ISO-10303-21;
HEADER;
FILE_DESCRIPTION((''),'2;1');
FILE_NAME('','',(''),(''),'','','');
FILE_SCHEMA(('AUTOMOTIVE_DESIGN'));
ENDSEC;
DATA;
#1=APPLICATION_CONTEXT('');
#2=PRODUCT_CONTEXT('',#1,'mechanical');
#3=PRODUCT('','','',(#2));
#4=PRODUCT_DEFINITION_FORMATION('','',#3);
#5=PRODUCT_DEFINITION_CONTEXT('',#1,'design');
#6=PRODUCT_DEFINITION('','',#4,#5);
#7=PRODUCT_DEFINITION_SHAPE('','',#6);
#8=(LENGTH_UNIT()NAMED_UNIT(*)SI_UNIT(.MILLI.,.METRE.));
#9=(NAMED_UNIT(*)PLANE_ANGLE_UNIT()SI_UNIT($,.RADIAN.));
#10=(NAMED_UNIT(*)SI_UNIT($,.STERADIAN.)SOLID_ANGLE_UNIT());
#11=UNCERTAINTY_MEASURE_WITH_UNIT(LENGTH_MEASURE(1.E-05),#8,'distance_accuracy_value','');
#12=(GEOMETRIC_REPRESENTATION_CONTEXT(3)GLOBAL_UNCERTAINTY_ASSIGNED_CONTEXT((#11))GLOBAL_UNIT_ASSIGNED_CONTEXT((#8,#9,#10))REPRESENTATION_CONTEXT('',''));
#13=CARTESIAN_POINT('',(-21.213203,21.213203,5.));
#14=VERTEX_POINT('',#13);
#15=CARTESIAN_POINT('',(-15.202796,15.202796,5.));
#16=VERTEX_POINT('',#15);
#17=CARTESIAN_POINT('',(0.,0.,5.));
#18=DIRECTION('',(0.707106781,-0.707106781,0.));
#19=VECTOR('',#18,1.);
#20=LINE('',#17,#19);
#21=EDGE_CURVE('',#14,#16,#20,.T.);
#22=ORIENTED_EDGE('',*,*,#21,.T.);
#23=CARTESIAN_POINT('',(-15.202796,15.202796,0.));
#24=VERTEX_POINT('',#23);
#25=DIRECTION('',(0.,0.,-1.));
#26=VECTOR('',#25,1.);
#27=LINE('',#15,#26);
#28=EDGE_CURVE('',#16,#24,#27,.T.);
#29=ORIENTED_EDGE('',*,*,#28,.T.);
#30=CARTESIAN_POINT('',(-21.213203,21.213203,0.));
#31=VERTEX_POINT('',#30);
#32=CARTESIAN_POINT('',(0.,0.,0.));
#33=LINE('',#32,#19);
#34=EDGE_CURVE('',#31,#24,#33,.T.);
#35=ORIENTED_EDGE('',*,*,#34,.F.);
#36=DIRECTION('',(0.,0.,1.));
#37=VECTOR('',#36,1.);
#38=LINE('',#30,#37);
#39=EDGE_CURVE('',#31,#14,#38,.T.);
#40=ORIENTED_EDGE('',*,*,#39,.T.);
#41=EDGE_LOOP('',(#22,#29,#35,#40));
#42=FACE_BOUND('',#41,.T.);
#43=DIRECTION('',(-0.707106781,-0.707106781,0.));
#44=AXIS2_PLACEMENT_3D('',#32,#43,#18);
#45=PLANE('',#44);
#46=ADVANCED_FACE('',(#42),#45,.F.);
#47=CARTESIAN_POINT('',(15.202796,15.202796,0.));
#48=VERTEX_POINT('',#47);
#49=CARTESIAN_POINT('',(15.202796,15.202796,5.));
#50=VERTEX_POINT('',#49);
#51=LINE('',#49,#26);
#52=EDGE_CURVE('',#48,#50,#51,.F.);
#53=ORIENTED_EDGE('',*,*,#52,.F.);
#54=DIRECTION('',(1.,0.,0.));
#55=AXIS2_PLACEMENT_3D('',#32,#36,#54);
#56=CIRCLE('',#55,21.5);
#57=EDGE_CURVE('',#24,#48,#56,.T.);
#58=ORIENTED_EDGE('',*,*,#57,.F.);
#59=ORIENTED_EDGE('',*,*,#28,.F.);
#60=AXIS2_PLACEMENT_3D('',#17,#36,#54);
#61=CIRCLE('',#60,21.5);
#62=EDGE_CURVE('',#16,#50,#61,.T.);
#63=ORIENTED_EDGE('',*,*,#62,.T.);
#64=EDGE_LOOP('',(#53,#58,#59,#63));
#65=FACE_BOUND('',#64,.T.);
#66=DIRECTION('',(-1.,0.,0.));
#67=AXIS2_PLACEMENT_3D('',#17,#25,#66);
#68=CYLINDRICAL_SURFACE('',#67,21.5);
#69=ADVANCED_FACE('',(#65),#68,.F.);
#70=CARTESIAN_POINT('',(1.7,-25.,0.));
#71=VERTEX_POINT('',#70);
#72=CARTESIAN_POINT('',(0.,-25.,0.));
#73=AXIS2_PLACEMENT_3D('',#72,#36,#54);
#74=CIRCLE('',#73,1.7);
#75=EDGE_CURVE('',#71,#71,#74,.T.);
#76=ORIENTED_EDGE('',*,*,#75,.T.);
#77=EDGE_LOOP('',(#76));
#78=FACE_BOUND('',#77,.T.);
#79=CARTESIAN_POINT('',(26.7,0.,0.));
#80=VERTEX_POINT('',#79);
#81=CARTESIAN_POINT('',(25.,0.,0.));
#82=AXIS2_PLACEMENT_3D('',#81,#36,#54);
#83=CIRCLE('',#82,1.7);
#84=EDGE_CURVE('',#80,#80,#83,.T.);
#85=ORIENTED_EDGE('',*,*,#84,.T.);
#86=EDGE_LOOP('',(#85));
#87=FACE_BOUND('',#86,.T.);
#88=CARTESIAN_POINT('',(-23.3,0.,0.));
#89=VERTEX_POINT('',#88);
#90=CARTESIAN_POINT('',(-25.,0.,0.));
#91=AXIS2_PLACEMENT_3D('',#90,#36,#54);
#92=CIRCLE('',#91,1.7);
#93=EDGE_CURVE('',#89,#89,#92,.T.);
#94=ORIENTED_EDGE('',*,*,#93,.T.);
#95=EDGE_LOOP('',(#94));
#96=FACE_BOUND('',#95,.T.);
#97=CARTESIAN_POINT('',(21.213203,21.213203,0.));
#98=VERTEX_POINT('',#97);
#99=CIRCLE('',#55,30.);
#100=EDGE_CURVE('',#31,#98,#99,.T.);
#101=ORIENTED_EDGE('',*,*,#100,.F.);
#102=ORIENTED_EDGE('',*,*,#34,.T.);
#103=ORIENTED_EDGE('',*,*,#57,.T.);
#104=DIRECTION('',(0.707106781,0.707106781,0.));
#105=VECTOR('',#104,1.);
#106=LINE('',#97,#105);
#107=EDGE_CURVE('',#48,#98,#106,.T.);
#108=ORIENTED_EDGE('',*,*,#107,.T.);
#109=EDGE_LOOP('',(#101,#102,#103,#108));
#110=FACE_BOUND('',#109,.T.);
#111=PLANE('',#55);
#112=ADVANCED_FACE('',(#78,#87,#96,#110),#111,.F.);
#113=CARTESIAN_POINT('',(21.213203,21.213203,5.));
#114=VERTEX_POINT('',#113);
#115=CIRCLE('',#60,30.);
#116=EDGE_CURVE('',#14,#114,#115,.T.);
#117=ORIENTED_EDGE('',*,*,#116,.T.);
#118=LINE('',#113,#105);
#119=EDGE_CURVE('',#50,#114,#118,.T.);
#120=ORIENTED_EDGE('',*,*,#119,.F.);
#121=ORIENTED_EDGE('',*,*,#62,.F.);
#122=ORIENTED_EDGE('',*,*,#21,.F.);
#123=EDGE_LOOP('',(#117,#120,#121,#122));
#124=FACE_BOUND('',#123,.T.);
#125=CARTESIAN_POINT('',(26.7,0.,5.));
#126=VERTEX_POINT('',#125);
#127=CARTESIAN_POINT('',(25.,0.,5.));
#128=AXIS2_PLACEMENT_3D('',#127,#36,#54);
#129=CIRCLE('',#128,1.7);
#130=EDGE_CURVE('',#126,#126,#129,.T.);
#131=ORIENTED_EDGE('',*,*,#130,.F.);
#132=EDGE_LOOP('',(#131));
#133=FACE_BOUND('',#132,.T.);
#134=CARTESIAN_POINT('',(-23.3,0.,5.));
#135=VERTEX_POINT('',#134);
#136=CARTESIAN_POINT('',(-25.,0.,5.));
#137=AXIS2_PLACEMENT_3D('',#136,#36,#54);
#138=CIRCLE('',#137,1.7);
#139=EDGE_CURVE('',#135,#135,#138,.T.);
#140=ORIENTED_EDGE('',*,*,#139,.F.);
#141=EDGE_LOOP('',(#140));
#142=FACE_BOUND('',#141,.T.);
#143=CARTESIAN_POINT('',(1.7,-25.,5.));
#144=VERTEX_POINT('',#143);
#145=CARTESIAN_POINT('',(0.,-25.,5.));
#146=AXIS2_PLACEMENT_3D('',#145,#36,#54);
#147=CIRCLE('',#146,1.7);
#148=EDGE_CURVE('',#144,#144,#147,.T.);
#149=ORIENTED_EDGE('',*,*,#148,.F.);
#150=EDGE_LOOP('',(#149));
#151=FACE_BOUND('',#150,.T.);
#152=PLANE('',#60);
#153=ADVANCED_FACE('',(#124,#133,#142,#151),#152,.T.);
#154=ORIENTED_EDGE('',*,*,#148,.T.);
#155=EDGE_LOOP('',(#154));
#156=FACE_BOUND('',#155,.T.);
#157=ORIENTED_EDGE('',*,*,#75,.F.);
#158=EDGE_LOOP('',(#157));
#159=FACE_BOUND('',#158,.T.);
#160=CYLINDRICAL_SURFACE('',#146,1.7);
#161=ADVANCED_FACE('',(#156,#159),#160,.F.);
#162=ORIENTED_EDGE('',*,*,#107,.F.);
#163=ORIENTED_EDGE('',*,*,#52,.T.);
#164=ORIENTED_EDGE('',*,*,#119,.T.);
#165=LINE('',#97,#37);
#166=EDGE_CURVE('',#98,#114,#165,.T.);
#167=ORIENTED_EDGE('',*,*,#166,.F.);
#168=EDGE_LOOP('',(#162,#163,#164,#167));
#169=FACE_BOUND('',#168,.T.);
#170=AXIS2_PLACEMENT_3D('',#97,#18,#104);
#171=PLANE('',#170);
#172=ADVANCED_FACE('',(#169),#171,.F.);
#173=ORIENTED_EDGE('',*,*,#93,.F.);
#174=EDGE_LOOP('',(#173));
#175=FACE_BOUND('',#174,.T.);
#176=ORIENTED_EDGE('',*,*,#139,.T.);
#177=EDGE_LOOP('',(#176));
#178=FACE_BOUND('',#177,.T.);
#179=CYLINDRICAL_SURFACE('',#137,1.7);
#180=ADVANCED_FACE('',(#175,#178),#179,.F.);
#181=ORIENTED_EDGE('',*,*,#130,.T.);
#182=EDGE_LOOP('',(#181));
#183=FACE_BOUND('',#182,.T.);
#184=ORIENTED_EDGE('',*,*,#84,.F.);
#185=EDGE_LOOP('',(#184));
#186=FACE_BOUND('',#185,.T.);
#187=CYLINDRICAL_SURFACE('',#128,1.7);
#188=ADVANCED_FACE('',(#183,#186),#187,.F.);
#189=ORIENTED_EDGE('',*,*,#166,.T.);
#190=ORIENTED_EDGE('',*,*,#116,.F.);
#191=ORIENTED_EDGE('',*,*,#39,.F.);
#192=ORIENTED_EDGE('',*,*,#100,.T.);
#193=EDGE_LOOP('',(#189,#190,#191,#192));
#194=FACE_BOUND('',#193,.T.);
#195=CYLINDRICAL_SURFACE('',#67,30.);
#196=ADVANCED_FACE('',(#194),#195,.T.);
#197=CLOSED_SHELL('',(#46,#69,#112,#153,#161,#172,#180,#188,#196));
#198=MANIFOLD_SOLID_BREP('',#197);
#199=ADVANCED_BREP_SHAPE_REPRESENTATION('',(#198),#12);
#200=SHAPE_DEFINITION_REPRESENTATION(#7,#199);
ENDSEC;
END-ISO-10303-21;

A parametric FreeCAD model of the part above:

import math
import FreeCAD as App
import Part
import Sketcher

doc = App.newDocument("Part")
body = doc.addObject("PartDesign::Body", "Body")

sketch1 = doc.addObject("Sketcher::SketchObject", "Sketch")
body.addObject(sketch1)
sketch1.AttachmentSupport = (doc.XY_Plane, [""])
sketch1.MapMode = "FlatFace"
sketch1.addGeometry([
    Part.Circle(App.Vector(0, 0, 0), App.Vector(0, 0, 1), 30),
    Part.Circle(App.Vector(0, 0, 0), App.Vector(0, 0, 1), 22),
], False)
sketch1.addConstraint([
    Sketcher.Constraint("Coincident", 0, 3, -1, 1),
    Sketcher.Constraint("Coincident", 1, 3, -1, 1),
    Sketcher.Constraint("Diameter", 0, 60.0),
    Sketcher.Constraint("Diameter", 1, 43.0),
])
pad1 = doc.addObject("PartDesign::Pad", "Pad")
body.addObject(pad1)
pad1.Profile = sketch1
pad1.Length = 5

sketch2 = doc.addObject("Sketcher::SketchObject", "Sketch001")
body.addObject(sketch2)
sketch2.AttachmentSupport = (doc.XY_Plane, [""])
sketch2.MapMode = "FlatFace"
sketch2.AttachmentOffset = App.Placement(App.Vector(0, 0, 5), App.Rotation())
sketch2.addGeometry([
    Part.Circle(App.Vector(-25, 0, 0), App.Vector(0, 0, 1), 1.7),
    Part.Circle(App.Vector(0, 25, 0), App.Vector(0, 0, 1), 1.7),
    Part.Circle(App.Vector(0, -25, 0), App.Vector(0, 0, 1), 1.7),
    Part.Circle(App.Vector(25, 0, 0), App.Vector(0, 0, 1), 1.7),
], False)
sketch2.addConstraint([
    Sketcher.Constraint("Equal", 0, 1),
    Sketcher.Constraint("Equal", 1, 2),
    Sketcher.Constraint("Equal", 2, 3),
    Sketcher.Constraint("Symmetric", 1, 3, 2, 3, -1, 1),
    Sketcher.Constraint("Symmetric", 0, 3, 3, 3, -1, 1),
    Sketcher.Constraint("PointOnObject", 0, 3, -1),
    Sketcher.Constraint("PointOnObject", 1, 3, -2),
    Sketcher.Constraint("Diameter", 0, 3.4),
    Sketcher.Constraint("DistanceX", 0, 3, -1, 1, 25.0),
    Sketcher.Constraint("DistanceY", -1, 1, 1, 3, 25.0),
])
doc.recompute()
hole = doc.addObject("PartDesign::Hole", "Hole")
body.addObject(hole)
hole.Profile = sketch2
hole.ThreadType = "None"
hole.Diameter = 3.4
hole.DepthType = "ThroughAll"

sketch3 = doc.addObject("Sketcher::SketchObject", "Sketch002")
body.addObject(sketch3)
sketch3.AttachmentSupport = (doc.XY_Plane, [""])
sketch3.MapMode = "FlatFace"
sketch3.AttachmentOffset = App.Placement(App.Vector(0, 0, 5), App.Rotation())
sketch3.addGeometry([
    Part.LineSegment(App.Vector(-21, 21, 0), App.Vector(0, 0, 0)),
    Part.LineSegment(App.Vector(0, 0, 0), App.Vector(21, 21, 0)),
    Part.ArcOfCircle(Part.Circle(App.Vector(0, 0, 0), App.Vector(0, 0, 1), 30), math.radians(45), math.radians(135)),
], False)
sketch3.addConstraint([
    Sketcher.Constraint("Coincident", 0, 2, 1, 1),
    Sketcher.Constraint("Coincident", 1, 2, 2, 1),
    Sketcher.Constraint("Coincident", 2, 2, 0, 1),
    Sketcher.Constraint("Coincident", 2, 3, -1, 1),
    Sketcher.Constraint("Coincident", 0, 2, -1, 1),
    Sketcher.Constraint("Perpendicular", 0, 1),
    Sketcher.Constraint("Horizontal", 1, 2, 2, 2),
    Sketcher.Constraint("Radius", 2, 30.0),
])
pocket1 = doc.addObject("PartDesign::Pocket", "Pocket")
body.addObject(pocket1)
pocket1.Profile = sketch3
pocket1.Type = "ThroughAll"

doc.recompute()
